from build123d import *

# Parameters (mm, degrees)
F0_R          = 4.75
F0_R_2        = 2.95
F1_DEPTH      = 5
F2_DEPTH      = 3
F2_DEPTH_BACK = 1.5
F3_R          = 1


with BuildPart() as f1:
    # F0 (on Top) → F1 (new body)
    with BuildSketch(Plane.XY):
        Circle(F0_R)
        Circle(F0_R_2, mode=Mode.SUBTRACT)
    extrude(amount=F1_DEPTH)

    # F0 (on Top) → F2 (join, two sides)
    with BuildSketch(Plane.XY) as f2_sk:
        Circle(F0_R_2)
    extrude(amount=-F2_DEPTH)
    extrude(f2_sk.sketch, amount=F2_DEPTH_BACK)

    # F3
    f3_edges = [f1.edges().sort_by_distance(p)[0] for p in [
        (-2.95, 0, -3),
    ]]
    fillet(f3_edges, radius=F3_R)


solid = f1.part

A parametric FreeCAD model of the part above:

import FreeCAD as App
import Part
import Sketcher


def edges_at(feature, points):
    """Names of the edges that pass closest to the given points."""
    edges = feature.Shape.Edges
    near = lambda p: min(range(len(edges)), key=lambda i: edges[i].distToShape(Part.Vertex(*p))[0])
    return sorted({f"Edge{near(p) + 1}" for p in points})

doc = App.newDocument("Part")
body = doc.addObject("PartDesign::Body", "Body")

# Sketch on XY plane
sketch1 = body.newObject("Sketcher::SketchObject", "Sketch")
sketch1.AttachmentSupport = (doc.getObject("XY_Plane"), [""])
sketch1.MapMode = "FlatFace"
sketch1.addGeometry(Part.Circle(App.Vector(0, 0, 0), App.Vector(0, 0, 1), 4.8), False)
sketch1.addGeometry(Part.Circle(App.Vector(0, 0, 0), App.Vector(0, 0, 1), 3), False)
sketch1.addConstraint(Sketcher.Constraint("Coincident", 0, 3, -1, 1))
sketch1.addConstraint(Sketcher.Constraint("Coincident", 1, 3, -1, 1))
sketch1.addConstraint(Sketcher.Constraint("Diameter", 0, 9.5))
sketch1.addConstraint(Sketcher.Constraint("Diameter", 1, 5.9))
pad1 = body.newObject("PartDesign::Pad", "Pad")
pad1.Profile = sketch1
pad1.Length = 5

# Sketch on XY plane
sketch2 = body.newObject("Sketcher::SketchObject", "Sketch001")
sketch2.AttachmentSupport = (doc.getObject("XY_Plane"), [""])
sketch2.MapMode = "FlatFace"
sketch2.addGeometry(Part.Circle(App.Vector(0, 0, 0), App.Vector(0, 0, 1), 3), False)
sketch2.addConstraint(Sketcher.Constraint("Coincident", 0, 3, -1, 1))
sketch2.addConstraint(Sketcher.Constraint("Diameter", 0, 5.9))
pad2 = body.newObject("PartDesign::Pad", "Pad001")
pad2.Profile = sketch2
pad2.Type = "TwoLengths"
pad2.Length = 3
pad2.Length2 = 1.5
pad2.Reversed = True
doc.recompute()

fillet = body.newObject("PartDesign::Fillet", "Fillet")
fillet.Base = (pad2, edges_at(pad2, [(-2.95, 0, -3)]))
fillet.Radius = 1

doc.recompute()
